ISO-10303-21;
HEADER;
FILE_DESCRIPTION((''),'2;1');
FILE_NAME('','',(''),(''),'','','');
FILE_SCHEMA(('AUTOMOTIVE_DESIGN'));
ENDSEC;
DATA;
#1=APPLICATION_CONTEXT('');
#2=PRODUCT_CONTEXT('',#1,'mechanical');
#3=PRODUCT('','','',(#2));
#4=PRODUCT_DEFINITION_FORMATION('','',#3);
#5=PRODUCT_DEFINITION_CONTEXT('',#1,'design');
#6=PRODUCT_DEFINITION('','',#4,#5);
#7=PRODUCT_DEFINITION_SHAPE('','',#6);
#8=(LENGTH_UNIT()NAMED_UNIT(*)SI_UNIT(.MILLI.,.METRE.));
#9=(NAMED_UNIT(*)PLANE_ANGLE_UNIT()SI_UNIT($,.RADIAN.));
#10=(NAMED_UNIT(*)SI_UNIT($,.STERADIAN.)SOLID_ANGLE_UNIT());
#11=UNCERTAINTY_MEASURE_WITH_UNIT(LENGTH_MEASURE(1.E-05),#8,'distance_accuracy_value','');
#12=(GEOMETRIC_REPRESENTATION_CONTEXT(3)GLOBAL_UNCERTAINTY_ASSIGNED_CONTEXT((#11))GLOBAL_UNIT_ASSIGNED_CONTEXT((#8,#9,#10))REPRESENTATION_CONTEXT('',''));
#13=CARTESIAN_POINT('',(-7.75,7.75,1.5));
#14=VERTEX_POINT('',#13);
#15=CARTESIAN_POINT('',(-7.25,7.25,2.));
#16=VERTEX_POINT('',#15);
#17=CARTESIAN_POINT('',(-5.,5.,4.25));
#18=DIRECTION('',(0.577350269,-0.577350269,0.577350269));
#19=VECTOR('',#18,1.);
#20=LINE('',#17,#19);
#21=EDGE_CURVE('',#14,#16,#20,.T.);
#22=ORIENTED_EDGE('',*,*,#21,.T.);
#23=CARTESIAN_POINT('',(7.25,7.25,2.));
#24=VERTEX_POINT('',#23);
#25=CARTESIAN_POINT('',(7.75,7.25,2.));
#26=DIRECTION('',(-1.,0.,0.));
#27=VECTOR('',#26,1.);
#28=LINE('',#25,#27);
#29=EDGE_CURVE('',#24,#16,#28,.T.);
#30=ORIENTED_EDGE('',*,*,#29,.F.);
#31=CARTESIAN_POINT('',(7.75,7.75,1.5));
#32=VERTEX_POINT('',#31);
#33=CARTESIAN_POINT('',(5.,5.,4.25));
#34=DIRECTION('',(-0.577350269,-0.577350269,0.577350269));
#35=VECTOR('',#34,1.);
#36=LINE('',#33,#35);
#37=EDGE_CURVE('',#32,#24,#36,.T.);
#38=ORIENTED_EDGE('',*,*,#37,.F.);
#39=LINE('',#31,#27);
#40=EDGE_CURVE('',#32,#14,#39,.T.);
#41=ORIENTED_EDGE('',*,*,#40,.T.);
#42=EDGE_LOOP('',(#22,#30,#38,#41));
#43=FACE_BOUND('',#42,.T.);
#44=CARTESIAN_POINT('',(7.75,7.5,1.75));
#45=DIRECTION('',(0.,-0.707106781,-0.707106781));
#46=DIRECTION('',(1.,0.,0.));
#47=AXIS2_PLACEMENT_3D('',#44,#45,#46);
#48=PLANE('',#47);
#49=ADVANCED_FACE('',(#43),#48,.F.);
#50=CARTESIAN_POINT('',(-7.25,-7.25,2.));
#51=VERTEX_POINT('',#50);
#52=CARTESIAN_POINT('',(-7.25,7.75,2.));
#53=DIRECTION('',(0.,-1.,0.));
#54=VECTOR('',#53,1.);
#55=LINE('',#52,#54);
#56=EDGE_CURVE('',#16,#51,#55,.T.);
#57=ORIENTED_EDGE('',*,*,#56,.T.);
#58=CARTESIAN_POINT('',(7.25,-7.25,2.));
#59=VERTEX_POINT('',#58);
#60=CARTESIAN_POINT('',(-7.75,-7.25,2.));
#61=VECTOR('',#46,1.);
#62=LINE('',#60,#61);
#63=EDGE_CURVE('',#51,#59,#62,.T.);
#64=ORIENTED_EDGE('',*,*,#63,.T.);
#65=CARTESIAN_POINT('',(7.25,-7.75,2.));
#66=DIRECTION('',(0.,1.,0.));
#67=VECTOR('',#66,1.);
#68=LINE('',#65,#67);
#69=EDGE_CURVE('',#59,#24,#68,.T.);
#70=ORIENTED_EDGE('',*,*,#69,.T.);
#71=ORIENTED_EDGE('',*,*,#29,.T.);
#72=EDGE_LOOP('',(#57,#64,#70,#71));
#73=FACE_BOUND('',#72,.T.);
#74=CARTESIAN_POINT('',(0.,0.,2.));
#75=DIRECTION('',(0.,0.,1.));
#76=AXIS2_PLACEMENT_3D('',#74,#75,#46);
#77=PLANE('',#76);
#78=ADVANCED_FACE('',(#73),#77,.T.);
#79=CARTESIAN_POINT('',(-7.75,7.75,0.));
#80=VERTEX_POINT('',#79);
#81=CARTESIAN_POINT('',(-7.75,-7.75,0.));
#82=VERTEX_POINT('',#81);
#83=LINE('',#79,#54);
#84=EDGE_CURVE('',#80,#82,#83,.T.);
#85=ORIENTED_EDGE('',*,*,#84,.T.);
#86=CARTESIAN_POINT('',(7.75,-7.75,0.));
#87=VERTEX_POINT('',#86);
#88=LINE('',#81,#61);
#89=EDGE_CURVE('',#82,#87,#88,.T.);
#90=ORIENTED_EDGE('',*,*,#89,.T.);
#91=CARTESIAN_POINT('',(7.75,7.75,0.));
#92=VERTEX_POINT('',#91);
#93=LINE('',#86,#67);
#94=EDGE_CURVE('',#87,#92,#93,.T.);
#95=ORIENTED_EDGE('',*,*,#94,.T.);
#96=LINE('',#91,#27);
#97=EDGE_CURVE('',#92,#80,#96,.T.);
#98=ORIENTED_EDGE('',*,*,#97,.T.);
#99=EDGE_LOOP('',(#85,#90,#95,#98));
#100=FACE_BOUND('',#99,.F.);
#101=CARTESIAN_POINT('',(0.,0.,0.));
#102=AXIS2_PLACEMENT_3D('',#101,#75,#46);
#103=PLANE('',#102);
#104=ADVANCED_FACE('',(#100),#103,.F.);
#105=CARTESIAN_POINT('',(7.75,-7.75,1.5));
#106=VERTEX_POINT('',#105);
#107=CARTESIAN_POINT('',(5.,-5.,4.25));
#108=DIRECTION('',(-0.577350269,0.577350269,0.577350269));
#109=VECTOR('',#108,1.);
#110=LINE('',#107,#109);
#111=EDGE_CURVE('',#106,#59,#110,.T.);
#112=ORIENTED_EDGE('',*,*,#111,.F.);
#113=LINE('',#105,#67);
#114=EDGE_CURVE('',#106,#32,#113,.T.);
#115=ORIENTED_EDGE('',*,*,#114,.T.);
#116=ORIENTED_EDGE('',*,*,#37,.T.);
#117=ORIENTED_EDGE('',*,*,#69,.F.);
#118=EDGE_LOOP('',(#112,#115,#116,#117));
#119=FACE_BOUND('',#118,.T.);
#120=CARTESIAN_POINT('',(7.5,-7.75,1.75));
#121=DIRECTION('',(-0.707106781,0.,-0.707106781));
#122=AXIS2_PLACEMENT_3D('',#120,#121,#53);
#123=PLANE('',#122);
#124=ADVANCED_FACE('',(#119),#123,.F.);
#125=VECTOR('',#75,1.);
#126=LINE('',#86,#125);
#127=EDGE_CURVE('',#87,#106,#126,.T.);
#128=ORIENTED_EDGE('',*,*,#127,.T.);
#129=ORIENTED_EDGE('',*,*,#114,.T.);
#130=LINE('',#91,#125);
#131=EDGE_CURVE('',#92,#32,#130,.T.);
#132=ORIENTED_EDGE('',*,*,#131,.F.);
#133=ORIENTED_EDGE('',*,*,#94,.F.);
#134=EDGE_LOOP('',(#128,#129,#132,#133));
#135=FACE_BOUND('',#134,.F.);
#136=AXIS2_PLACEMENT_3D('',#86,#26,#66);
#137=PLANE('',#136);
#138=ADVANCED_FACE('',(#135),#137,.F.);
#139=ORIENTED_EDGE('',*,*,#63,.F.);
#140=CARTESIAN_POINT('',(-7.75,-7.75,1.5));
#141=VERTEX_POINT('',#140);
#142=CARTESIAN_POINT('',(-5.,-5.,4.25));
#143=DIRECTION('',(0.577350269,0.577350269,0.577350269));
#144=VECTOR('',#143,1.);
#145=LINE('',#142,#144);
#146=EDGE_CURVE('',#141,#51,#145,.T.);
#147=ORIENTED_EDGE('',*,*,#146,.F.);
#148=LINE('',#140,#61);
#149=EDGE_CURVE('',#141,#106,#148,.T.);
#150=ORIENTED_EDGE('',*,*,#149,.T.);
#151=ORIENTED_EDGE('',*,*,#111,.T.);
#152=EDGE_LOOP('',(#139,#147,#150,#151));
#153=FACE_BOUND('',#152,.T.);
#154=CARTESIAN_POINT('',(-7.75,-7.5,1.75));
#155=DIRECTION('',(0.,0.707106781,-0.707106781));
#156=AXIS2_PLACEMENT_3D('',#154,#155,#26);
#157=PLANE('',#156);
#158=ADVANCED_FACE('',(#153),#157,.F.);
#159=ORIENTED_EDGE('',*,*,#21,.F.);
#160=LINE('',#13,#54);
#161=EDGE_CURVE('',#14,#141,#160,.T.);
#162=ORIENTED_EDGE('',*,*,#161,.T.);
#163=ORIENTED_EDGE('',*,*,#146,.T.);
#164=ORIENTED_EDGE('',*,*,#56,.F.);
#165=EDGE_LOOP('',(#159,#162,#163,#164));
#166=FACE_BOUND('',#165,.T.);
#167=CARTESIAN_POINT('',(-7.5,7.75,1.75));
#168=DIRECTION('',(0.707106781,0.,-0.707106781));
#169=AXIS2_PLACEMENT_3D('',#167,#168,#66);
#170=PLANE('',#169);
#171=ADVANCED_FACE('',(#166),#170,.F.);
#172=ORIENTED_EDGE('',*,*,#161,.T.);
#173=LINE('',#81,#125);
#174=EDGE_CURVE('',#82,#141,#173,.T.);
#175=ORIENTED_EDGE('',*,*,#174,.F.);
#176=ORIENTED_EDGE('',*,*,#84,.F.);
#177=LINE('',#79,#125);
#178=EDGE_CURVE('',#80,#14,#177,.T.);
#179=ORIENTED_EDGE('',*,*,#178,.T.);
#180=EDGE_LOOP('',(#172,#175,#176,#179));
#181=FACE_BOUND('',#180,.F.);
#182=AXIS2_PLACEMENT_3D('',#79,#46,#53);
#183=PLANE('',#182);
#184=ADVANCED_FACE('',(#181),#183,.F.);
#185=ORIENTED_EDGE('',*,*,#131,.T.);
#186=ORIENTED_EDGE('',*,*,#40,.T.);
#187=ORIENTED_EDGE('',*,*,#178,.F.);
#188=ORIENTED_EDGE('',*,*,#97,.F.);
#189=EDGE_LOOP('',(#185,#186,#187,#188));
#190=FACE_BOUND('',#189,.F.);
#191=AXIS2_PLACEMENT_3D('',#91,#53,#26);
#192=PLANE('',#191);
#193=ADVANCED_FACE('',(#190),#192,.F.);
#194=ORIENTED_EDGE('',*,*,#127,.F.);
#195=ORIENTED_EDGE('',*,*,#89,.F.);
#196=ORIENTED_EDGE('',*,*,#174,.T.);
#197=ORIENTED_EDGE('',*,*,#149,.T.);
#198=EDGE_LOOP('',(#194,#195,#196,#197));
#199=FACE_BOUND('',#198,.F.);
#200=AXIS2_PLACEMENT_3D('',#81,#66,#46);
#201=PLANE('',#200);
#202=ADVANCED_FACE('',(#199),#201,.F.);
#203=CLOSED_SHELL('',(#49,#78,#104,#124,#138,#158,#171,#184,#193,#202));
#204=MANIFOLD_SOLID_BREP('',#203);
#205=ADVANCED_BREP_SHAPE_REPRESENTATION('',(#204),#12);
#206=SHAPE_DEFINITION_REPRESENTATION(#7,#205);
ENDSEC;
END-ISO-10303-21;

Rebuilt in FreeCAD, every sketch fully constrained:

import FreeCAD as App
import Part
import Sketcher
Q = App.Units.Quantity


def edges_at(feature, points):
    """Names of the edges that pass closest to the given points."""
    edges = feature.Shape.Edges
    near = lambda p: min(range(len(edges)), key=lambda i: edges[i].distToShape(Part.Vertex(*p))[0])
    return sorted({f"Edge{near(p) + 1}" for p in points})


def add_polygon(sketch, points):
    """Adds a closed chain of lines whose ends are joined by coincident constraints."""
    first, n = sketch.GeometryCount, len(points)
    for a, b in zip(points, points[1:] + points[:1]):
        sketch.addGeometry(Part.LineSegment(App.Vector(*a, 0), App.Vector(*b, 0)), False)
    for i in range(n):
        sketch.addConstraint(Sketcher.Constraint("Coincident", first + i, 2, first + (i + 1) % n, 1))

doc = App.newDocument("Part")
params = doc.addObject("Spreadsheet::Sheet", "Params")
for row, (alias, value) in enumerate([
    ("pad1_length", "2 mm"),
    ("chamfer_size", "0.5 mm"),
], start=1):
    params.set(f"A{row}", alias)
    params.set(f"B{row}", "=" + value)
    params.setAlias(f"B{row}", alias)

body = doc.addObject("PartDesign::Body", "Body")

# Sketch on XY plane
sketch1 = body.newObject("Sketcher::SketchObject", "Sketch")
sketch1.AttachmentSupport = (doc.getObject("XY_Plane"), [""])
sketch1.MapMode = "FlatFace"
add_polygon(sketch1, [(-8, 8), (-8, -8), (8, -8), (8, 8)])  # lines 0-3
sketch1.addConstraint(Sketcher.Constraint("Vertical", 0))
sketch1.addConstraint(Sketcher.Constraint("Horizontal", 1))
sketch1.addConstraint(Sketcher.Constraint("Vertical", 2))
sketch1.addConstraint(Sketcher.Constraint("Horizontal", 3))
sketch1.addConstraint(Sketcher.Constraint("Symmetric", 0, 2, 2, 2, -1, 1))
sketch1.addConstraint(Sketcher.Constraint("Equal", 3, 0))
sketch1.addConstraint(Sketcher.Constraint("DistanceX", 0, 2, -1, 1, Q("7.75 mm")))
pad1 = body.newObject("PartDesign::Pad", "Pad")
pad1.Profile = sketch1
pad1.setExpression("Length", "Params.pad1_length")
doc.recompute()

chamfer = body.newObject("PartDesign::Chamfer", "Chamfer")
chamfer.Base = (pad1, edges_at(pad1, [
    (0, -7.75, 2),
    (7.75, 0, 2),
    (0, 7.75, 2),
    (-7.75, 0, 2),
]))
chamfer.setExpression("Size", "Params.chamfer_size")

doc.recompute()
